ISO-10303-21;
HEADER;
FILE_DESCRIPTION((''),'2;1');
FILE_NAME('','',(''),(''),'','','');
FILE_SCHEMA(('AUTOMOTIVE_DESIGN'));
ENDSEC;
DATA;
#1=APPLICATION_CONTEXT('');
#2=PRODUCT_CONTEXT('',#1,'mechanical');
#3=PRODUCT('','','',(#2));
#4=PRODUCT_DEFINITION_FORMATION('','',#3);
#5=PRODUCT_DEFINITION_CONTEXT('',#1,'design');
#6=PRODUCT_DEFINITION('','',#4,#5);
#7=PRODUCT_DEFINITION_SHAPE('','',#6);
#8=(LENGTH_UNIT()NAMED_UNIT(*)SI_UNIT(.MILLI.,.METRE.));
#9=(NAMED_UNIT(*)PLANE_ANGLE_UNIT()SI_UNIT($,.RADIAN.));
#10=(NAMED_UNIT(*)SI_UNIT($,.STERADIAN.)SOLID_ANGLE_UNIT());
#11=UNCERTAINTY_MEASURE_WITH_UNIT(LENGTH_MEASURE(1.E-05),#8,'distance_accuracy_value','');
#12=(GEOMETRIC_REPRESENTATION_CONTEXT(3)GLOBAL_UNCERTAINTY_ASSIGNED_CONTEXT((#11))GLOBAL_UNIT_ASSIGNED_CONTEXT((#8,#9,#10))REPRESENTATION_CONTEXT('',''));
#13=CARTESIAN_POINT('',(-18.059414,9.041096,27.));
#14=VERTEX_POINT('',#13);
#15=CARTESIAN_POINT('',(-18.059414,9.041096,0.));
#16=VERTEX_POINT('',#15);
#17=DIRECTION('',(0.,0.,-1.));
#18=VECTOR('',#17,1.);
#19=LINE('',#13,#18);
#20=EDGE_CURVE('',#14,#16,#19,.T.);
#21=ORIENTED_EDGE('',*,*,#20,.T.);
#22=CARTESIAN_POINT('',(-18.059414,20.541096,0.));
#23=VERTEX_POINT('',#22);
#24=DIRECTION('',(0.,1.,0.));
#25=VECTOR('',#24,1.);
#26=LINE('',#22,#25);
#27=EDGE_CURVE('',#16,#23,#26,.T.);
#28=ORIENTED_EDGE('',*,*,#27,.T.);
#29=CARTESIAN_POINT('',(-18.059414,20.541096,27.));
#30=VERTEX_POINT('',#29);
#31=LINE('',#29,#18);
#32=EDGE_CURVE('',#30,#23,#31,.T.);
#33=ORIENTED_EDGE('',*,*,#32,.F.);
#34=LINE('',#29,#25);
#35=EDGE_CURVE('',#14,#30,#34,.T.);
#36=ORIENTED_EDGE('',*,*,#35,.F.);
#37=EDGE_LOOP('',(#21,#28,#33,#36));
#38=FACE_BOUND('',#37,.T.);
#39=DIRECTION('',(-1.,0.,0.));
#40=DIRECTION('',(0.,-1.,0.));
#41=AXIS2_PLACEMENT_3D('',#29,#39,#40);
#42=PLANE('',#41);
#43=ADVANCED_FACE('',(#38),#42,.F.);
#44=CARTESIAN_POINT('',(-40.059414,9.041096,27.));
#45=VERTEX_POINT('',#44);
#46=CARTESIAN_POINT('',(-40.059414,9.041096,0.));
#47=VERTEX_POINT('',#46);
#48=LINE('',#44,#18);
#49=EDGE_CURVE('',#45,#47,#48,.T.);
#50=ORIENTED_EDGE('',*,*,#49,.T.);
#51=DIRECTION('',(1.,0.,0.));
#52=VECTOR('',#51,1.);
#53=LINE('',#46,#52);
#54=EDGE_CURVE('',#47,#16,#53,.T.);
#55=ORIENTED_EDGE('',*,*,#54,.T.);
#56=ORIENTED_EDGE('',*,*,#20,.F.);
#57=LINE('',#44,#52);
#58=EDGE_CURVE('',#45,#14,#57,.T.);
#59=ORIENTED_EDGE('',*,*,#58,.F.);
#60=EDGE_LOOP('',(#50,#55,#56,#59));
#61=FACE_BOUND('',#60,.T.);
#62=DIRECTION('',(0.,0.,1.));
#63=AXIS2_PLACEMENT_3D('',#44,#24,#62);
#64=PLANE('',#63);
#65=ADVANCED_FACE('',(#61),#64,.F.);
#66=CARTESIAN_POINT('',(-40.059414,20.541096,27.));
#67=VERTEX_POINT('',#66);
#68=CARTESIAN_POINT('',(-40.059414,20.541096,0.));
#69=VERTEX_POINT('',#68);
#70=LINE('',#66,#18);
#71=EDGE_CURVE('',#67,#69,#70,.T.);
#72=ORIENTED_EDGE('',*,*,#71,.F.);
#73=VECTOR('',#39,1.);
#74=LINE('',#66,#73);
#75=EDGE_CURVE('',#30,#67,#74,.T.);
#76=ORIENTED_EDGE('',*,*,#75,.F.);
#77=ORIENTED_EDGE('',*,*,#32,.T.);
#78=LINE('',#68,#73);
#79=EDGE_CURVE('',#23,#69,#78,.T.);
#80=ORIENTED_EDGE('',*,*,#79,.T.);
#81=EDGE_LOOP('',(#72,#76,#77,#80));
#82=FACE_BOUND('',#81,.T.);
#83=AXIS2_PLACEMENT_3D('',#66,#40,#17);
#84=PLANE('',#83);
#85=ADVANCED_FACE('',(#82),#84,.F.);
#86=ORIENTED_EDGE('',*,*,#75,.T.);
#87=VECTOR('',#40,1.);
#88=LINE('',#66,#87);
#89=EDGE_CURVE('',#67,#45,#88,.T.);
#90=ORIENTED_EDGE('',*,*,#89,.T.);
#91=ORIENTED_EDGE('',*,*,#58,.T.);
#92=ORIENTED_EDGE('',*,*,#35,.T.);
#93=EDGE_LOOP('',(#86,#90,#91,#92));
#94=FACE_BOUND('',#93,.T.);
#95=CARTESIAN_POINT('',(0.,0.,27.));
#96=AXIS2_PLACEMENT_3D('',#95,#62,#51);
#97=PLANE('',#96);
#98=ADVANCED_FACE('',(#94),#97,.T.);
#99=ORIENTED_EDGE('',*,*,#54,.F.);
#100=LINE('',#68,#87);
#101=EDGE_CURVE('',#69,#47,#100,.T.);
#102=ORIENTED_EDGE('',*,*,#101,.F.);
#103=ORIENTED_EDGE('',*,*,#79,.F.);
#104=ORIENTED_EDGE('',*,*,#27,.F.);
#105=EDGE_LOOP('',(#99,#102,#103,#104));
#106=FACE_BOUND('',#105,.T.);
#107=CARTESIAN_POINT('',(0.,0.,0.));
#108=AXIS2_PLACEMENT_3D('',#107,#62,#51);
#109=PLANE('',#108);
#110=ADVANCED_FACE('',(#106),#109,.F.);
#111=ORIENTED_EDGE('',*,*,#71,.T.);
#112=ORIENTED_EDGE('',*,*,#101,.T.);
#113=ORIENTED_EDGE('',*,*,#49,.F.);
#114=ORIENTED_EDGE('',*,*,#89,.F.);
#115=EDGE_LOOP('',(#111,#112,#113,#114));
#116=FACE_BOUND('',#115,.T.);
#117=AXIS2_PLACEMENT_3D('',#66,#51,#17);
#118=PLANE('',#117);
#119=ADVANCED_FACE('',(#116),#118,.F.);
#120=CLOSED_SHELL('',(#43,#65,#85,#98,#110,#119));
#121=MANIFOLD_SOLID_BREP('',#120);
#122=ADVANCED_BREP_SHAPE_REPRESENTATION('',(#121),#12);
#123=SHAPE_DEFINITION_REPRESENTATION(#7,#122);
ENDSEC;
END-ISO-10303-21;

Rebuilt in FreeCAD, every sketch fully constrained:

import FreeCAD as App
import Part
import Sketcher
from FreeCAD import Vector

doc = App.newDocument("Part")
params = doc.addObject("Spreadsheet::Sheet", "Params")
for row, (alias, value) in enumerate([
    ("sketch1_width", "22 mm"),
    ("sketch1_height", "11.5 mm"),
    ("pad1_length", "27 mm"),
], start=1):
    params.set(f"A{row}", alias)
    params.set(f"B{row}", "=" + value)
    params.setAlias(f"B{row}", alias)

body = doc.addObject("PartDesign::Body", "Body")

sketch1 = body.newObject("Sketcher::SketchObject", "Sketch")
sketch1.AttachmentSupport = (doc.getObject("XY_Plane"), [""])
sketch1.MapMode = "FlatFace"
sketch1.addGeometry([
    Part.LineSegment(Vector(-40, 21, 0), Vector(-40, 9, 0)),
    Part.LineSegment(Vector(-40, 9, 0), Vector(-18, 9, 0)),
    Part.LineSegment(Vector(-18, 9, 0), Vector(-18, 21, 0)),
    Part.LineSegment(Vector(-18, 21, 0), Vector(-40, 21, 0)),
], False)
sketch1.addConstraint([
    Sketcher.Constraint("Coincident", 0, 2, 1, 1),
    Sketcher.Constraint("Coincident", 1, 2, 2, 1),
    Sketcher.Constraint("Coincident", 2, 2, 3, 1),
    Sketcher.Constraint("Coincident", 3, 2, 0, 1),
    Sketcher.Constraint("Vertical", 0),
    Sketcher.Constraint("Horizontal", 1),
    Sketcher.Constraint("Vertical", 2),
    Sketcher.Constraint("Horizontal", 3),
    Sketcher.Constraint("DistanceX", 1, 1, 1, 2, 22.0),
    Sketcher.Constraint("DistanceY", 0, 2, 0, 1, 11.5),
    Sketcher.Constraint("DistanceX", 0, 2, -1, 1, 40.059414),
    Sketcher.Constraint("DistanceY", -1, 1, 0, 2, 9.041096),
])
sketch1.setExpression("Constraints[8]", "Params.sketch1_width")
sketch1.setExpression("Constraints[9]", "Params.sketch1_height")
pad1 = body.newObject("PartDesign::Pad", "Pad")
pad1.Profile = sketch1
pad1.setExpression("Length", "Params.pad1_length")

doc.recompute()
